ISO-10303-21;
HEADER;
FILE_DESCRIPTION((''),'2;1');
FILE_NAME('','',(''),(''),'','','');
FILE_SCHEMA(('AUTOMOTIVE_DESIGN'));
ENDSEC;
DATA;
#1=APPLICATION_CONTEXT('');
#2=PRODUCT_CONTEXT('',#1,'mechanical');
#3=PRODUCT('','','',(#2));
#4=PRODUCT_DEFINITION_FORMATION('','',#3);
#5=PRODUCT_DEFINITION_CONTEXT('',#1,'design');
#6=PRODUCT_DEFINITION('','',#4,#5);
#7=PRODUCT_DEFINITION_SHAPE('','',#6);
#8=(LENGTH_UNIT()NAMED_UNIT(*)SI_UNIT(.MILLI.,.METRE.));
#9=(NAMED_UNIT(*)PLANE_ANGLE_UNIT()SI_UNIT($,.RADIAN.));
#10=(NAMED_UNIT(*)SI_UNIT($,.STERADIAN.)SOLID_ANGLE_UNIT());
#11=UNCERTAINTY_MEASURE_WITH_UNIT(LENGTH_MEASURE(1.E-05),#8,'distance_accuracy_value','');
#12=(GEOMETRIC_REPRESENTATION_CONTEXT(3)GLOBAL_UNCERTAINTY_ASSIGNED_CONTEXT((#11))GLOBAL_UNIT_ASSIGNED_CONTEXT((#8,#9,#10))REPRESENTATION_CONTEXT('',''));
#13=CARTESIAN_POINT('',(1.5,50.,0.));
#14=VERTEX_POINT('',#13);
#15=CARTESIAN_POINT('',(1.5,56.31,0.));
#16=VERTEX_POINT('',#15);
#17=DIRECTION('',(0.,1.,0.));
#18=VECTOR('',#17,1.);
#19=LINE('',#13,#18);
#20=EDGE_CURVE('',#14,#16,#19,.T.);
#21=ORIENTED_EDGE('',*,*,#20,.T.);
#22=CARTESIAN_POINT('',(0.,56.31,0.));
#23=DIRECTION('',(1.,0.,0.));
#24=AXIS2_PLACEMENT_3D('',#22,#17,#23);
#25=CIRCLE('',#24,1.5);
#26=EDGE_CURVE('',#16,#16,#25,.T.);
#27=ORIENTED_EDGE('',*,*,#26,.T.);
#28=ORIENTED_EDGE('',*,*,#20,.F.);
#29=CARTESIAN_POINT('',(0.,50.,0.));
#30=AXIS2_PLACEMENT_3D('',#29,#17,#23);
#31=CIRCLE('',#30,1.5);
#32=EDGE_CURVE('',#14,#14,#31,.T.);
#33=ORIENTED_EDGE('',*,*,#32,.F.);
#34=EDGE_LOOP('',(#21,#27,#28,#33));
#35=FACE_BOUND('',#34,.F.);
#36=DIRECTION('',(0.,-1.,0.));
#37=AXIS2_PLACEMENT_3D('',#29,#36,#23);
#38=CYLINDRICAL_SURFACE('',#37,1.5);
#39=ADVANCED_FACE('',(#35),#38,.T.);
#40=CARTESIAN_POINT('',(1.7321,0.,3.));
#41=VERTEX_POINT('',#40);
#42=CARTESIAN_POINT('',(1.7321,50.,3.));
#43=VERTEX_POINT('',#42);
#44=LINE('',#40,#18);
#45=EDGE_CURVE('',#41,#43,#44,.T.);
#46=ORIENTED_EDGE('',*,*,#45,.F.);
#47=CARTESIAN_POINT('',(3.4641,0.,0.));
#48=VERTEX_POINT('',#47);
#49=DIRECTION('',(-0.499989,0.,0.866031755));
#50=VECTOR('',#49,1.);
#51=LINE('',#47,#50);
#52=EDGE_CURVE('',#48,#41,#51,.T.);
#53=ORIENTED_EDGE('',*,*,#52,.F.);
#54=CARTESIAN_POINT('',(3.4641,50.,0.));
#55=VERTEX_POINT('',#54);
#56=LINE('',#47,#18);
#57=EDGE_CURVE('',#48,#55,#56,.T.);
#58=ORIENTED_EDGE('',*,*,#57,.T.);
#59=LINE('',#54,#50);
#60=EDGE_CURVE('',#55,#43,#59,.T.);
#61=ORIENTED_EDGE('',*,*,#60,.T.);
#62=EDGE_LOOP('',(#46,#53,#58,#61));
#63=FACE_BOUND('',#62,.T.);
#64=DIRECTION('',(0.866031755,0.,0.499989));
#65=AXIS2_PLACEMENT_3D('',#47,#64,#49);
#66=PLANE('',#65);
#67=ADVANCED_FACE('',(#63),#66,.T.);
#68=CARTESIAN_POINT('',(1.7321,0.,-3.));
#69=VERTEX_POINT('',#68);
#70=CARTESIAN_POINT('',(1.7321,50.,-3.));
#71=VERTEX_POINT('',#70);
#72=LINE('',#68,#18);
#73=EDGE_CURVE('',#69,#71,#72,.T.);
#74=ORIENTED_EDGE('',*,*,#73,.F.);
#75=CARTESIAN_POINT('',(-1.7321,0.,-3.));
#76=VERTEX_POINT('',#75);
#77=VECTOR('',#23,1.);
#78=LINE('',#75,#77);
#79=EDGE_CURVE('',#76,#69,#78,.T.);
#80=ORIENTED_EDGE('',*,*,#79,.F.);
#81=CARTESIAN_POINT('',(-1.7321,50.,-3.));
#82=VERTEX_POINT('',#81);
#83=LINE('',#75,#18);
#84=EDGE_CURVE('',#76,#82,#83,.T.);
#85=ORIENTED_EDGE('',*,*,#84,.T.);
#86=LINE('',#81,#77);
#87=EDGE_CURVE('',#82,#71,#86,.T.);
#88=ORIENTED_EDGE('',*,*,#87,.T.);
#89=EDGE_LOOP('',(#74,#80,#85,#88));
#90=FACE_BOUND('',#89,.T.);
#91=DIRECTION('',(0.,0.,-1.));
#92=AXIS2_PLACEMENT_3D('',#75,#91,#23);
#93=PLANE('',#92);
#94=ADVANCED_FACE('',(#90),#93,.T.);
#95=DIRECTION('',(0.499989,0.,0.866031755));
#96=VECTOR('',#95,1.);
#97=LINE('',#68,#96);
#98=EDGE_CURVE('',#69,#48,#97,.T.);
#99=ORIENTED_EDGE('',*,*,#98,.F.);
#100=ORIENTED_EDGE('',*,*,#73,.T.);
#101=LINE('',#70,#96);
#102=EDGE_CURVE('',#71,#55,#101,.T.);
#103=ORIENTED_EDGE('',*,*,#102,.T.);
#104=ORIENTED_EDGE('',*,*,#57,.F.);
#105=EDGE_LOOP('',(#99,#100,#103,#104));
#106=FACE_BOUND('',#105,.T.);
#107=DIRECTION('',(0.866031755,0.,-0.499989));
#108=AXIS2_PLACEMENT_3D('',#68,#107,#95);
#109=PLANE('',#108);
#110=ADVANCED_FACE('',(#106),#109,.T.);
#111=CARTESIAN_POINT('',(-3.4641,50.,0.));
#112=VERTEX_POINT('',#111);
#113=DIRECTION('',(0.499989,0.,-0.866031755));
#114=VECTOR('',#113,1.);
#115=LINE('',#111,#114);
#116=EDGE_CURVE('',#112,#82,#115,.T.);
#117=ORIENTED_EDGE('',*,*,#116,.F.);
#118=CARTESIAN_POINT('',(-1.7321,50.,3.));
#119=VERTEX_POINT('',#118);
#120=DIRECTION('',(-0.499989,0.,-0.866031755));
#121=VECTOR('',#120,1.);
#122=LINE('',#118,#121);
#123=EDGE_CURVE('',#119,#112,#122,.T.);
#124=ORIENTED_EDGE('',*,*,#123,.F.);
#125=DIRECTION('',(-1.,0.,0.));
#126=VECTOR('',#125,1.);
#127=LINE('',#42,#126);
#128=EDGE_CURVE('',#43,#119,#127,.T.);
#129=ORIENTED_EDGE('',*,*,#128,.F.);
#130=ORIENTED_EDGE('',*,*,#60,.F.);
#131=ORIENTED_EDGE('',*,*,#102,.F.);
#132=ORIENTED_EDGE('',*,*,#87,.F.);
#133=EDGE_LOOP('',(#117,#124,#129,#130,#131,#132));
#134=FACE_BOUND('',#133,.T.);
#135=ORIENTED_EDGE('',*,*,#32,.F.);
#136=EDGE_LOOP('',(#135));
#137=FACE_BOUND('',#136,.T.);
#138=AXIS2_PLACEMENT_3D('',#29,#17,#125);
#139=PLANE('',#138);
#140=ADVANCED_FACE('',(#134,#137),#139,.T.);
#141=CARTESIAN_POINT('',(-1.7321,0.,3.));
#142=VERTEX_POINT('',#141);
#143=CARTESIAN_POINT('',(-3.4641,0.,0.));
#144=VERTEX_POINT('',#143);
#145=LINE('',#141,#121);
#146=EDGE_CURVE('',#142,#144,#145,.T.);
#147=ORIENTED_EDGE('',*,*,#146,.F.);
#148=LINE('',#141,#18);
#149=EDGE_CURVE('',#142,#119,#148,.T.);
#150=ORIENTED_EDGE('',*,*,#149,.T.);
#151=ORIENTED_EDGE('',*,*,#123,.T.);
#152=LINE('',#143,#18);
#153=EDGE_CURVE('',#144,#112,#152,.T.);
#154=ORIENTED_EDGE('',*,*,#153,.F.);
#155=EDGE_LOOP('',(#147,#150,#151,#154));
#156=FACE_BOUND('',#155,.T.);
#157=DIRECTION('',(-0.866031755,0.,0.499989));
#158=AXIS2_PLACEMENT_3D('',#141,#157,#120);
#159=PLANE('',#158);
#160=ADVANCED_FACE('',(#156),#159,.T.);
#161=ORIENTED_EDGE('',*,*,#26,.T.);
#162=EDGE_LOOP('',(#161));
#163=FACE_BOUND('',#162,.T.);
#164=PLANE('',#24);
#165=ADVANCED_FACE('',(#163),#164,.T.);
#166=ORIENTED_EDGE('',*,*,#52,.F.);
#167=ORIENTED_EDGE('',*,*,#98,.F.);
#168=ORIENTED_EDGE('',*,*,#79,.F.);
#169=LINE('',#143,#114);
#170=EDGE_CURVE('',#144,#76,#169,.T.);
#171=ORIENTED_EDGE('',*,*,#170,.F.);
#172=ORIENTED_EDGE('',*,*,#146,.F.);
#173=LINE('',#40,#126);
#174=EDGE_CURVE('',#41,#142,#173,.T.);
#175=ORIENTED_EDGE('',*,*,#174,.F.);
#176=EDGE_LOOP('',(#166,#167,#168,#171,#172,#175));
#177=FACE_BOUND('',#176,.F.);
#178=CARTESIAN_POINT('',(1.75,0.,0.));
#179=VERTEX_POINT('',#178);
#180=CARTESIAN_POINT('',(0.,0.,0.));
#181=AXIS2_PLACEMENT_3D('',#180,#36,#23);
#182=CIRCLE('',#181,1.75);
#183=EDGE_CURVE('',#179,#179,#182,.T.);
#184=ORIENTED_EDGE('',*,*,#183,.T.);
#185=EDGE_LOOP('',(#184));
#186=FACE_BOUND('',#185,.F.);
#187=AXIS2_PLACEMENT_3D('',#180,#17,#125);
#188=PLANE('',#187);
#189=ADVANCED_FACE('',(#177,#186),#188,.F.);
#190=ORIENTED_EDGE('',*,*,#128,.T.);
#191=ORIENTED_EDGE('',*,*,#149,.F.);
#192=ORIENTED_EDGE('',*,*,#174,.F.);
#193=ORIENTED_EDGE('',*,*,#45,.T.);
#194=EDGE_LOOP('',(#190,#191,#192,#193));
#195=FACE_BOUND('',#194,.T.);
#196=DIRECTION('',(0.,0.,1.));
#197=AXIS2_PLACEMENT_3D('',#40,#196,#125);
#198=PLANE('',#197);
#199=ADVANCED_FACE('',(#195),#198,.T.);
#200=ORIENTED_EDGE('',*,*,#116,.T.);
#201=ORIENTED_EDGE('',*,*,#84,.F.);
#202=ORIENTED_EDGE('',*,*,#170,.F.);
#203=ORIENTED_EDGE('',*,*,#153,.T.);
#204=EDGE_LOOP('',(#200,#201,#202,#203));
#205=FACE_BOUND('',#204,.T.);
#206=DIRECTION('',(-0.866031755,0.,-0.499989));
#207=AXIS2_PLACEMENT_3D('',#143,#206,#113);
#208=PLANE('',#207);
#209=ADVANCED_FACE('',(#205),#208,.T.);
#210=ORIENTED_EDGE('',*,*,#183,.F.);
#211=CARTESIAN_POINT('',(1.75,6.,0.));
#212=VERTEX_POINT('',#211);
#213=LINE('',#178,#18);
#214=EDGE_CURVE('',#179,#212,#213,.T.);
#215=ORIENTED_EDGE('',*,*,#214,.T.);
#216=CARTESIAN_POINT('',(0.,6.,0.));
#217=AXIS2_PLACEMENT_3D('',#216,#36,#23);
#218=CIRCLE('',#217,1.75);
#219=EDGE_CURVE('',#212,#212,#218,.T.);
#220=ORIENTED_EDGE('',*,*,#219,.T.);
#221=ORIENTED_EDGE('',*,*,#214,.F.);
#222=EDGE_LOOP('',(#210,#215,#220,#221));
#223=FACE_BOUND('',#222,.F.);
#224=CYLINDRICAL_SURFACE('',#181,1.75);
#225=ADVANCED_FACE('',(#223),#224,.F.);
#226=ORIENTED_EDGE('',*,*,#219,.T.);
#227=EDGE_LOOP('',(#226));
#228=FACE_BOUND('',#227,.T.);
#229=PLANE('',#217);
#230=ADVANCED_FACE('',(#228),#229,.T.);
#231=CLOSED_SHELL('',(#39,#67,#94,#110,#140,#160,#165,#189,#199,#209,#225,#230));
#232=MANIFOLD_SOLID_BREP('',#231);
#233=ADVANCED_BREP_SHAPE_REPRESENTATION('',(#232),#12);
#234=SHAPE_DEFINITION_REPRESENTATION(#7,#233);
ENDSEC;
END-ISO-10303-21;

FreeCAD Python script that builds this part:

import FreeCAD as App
import Part
import Sketcher

V = App.Vector
Q = App.Units.Quantity

doc = App.newDocument("Part")
body = doc.addObject("PartDesign::Body", "Body")

sketch1 = body.newObject("Sketcher::SketchObject", "Sketch")
sketch1.AttachmentSupport = (doc.getObject("XZ_Plane"), [""])
sketch1.MapMode = "FlatFace"
sketch1.addGeometry(Part.LineSegment(V(1.7, 3, 0), V(3.5, 0, 0)), False)
sketch1.addGeometry(Part.LineSegment(V(3.5, 0, 0), V(1.7, -3, 0)), False)
sketch1.addGeometry(Part.LineSegment(V(1.7, -3, 0), V(-1.7, -3, 0)), False)
sketch1.addGeometry(Part.LineSegment(V(-1.7, -3, 0), V(-3.5, 0, 0)), False)
sketch1.addGeometry(Part.LineSegment(V(-3.5, 0, 0), V(-1.7, 3, 0)), False)
sketch1.addGeometry(Part.LineSegment(V(-1.7, 3, 0), V(1.7, 3, 0)), False)
sketch1.addConstraint(Sketcher.Constraint("Coincident", 0, 2, 1, 1))
sketch1.addConstraint(Sketcher.Constraint("Coincident", 1, 2, 2, 1))
sketch1.addConstraint(Sketcher.Constraint("Coincident", 2, 2, 3, 1))
sketch1.addConstraint(Sketcher.Constraint("Coincident", 3, 2, 4, 1))
sketch1.addConstraint(Sketcher.Constraint("Coincident", 4, 2, 5, 1))
sketch1.addConstraint(Sketcher.Constraint("Coincident", 5, 2, 0, 1))
sketch1.addConstraint(Sketcher.Constraint("Horizontal", 2))
sketch1.addConstraint(Sketcher.Constraint("Horizontal", 5))
sketch1.addConstraint(Sketcher.Constraint("Symmetric", 0, 2, 3, 2, -1, 1))
sketch1.addConstraint(Sketcher.Constraint("Symmetric", 1, 2, 4, 2, -1, 1))
sketch1.addConstraint(Sketcher.Constraint("PointOnObject", 0, 2, -1))
sketch1.addConstraint(Sketcher.Constraint("Parallel", 0, 3))
sketch1.addConstraint(Sketcher.Constraint("Vertical", 2, 2, 4, 2))
sketch1.addConstraint(Sketcher.Constraint("DistanceY", 2, 2, 4, 2, Q("6 mm")))
sketch1.addConstraint(Sketcher.Constraint("Angle", 0, Q("-60.0007 deg")))
sketch1.addConstraint(Sketcher.Constraint("DistanceX", 2, 2, 2, 1, Q("3.4642 mm")))
pad1 = body.newObject("PartDesign::Pad", "Pad")
pad1.Profile = sketch1
pad1.Length = 50
pad1.Reversed = True

sketch2 = body.newObject("Sketcher::SketchObject", "Sketch001")
sketch2.AttachmentSupport = (doc.getObject("XZ_Plane"), [""])
sketch2.MapMode = "FlatFace"
sketch2.AttachmentOffset = App.Placement(V(0, 0, -50), App.Rotation())
sketch2.addGeometry(Part.Circle(V(0, 0, 0), V(0, 0, 1), 1.5), False)
sketch2.addConstraint(Sketcher.Constraint("Coincident", 0, 3, -1, 1))
sketch2.addConstraint(Sketcher.Constraint("Diameter", 0, Q("3 mm")))
pad2 = body.newObject("PartDesign::Pad", "Pad001")
pad2.Profile = sketch2
pad2.Length = 6.31
pad2.Reversed = True

sketch3 = body.newObject("Sketcher::SketchObject", "Sketch002")
sketch3.AttachmentSupport = (doc.getObject("XZ_Plane"), [""])
sketch3.MapMode = "FlatFace"
sketch3.addGeometry(Part.Circle(V(0, 0, 0), V(0, 0, 1), 1.8), False)
sketch3.addConstraint(Sketcher.Constraint("Coincident", 0, 3, -1, 1))
sketch3.addConstraint(Sketcher.Constraint("Diameter", 0, Q("3.5 mm")))
pocket1 = body.newObject("PartDesign::Pocket", "Pocket")
pocket1.Profile = sketch3
pocket1.Length = 6

doc.recompute()
